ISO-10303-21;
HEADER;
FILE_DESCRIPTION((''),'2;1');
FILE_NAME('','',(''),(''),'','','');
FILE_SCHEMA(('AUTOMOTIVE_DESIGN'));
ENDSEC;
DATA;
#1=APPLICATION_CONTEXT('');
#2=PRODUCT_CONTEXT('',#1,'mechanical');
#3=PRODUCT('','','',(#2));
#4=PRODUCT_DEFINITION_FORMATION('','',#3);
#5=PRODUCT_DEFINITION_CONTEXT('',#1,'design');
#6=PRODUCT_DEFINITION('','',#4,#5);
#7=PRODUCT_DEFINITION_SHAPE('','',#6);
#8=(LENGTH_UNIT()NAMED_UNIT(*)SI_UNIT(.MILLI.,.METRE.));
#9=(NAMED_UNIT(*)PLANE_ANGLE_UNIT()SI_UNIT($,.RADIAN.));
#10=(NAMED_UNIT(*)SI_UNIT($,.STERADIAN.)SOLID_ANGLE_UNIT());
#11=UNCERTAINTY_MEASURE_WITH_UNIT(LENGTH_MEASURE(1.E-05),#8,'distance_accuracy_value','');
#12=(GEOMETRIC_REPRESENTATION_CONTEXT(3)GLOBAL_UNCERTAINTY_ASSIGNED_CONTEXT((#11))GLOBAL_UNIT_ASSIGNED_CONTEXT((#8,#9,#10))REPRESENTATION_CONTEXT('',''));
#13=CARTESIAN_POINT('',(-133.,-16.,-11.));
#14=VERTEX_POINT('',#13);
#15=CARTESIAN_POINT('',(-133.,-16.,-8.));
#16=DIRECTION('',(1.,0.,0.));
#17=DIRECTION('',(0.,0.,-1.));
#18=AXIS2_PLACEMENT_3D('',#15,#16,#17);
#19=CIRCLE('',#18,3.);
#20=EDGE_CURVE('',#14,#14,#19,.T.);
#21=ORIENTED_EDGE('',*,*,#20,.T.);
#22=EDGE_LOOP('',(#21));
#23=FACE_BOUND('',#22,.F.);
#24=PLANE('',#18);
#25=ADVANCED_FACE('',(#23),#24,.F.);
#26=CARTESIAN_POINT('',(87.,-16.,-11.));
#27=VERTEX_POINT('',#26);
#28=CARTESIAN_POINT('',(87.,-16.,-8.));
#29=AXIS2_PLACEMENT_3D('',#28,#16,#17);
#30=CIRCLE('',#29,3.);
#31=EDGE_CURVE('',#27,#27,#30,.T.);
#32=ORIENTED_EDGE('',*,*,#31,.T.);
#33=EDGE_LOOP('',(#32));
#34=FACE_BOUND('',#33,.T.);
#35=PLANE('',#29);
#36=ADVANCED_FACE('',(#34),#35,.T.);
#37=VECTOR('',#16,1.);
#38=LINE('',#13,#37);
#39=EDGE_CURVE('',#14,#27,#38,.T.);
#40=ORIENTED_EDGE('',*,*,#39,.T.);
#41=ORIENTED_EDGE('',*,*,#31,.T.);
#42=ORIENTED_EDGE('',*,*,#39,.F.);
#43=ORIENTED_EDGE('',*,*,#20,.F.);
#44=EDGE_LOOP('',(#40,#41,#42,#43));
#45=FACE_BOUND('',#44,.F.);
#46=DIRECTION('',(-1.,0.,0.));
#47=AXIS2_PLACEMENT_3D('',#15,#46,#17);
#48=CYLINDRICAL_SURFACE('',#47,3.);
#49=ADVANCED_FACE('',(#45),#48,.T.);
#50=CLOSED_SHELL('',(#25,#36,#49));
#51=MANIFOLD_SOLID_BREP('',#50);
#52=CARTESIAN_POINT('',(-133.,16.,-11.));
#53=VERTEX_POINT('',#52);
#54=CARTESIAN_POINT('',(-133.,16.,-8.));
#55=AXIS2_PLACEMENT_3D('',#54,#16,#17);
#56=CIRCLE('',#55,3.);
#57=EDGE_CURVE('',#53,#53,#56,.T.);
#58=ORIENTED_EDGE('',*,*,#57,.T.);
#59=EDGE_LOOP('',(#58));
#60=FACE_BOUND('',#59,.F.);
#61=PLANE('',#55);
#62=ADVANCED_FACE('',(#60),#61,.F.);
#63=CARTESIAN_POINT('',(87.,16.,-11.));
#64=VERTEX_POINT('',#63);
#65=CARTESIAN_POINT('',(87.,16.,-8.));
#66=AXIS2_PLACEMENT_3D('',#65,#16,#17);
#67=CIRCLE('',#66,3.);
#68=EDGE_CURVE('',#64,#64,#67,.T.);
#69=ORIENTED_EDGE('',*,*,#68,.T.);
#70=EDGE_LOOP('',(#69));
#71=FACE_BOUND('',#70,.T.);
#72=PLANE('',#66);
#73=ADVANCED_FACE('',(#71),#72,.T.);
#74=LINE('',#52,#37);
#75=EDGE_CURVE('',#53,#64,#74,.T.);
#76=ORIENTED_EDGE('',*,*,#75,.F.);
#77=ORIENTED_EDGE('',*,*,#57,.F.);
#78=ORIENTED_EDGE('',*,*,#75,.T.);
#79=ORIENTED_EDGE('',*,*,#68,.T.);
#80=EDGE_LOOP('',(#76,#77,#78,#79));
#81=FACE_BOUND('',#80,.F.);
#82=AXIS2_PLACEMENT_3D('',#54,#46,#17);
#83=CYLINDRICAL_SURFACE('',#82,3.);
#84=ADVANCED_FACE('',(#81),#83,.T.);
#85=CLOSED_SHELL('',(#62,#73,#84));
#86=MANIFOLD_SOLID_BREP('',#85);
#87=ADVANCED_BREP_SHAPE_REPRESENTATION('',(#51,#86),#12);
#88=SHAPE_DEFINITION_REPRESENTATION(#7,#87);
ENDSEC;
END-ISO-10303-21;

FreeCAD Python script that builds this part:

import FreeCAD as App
import Part
import Sketcher
Q = App.Units.Quantity

doc = App.newDocument("Part")
params = doc.addObject("Spreadsheet::Sheet", "Params")
for row, (alias, value) in enumerate([
    ("sketch1_diameter", "6 mm"),
    ("pad1_length", "220 mm"),
    ("sketch2_diameter", "6 mm"),
    ("pad2_length", "220 mm"),
], start=1):
    params.set(f"A{row}", alias)
    params.set(f"B{row}", "=" + value)
    params.setAlias(f"B{row}", alias)

body = doc.addObject("PartDesign::Body", "Body")

# Sketch on YZ plane
sketch1 = body.newObject("Sketcher::SketchObject", "Sketch")
sketch1.AttachmentSupport = (doc.getObject("YZ_Plane"), [""])
sketch1.MapMode = "FlatFace"
sketch1.AttachmentOffset = App.Placement(App.Vector(0, 0, -133), App.Rotation())
sketch1.addGeometry(Part.Circle(App.Vector(16, -8, 0), App.Vector(0, 0, 1), 3), False)
sketch1.addConstraint(Sketcher.Constraint("Diameter", 0, Q("6 mm")))
sketch1.addConstraint(Sketcher.Constraint("DistanceX", -1, 1, 0, 3, Q("16 mm")))
sketch1.addConstraint(Sketcher.Constraint("DistanceY", 0, 3, -1, 1, Q("8 mm")))
sketch1.setExpression("Constraints[0]", "Params.sketch1_diameter")
pad1 = body.newObject("PartDesign::Pad", "Pad")
pad1.Profile = sketch1
pad1.setExpression("Length", "Params.pad1_length")
body2 = doc.addObject("PartDesign::Body", "Body001")
body2.AllowCompound = True

# Sketch on YZ plane
sketch2 = body2.newObject("Sketcher::SketchObject", "Sketch001")
sketch2.AttachmentSupport = (doc.getObject("YZ_Plane001"), [""])
sketch2.MapMode = "FlatFace"
sketch2.AttachmentOffset = App.Placement(App.Vector(0, 0, -133), App.Rotation())
sketch2.addGeometry(Part.Circle(App.Vector(-16, -8, 0), App.Vector(0, 0, 1), 3), False)
sketch2.addConstraint(Sketcher.Constraint("Diameter", 0, Q("6 mm")))
sketch2.addConstraint(Sketcher.Constraint("DistanceX", 0, 3, -1, 1, Q("16 mm")))
sketch2.addConstraint(Sketcher.Constraint("DistanceY", 0, 3, -1, 1, Q("8 mm")))
sketch2.setExpression("Constraints[0]", "Params.sketch2_diameter")
pad2 = body2.newObject("PartDesign::Pad", "Pad001")
pad2.Profile = sketch2
pad2.setExpression("Length", "Params.pad2_length")
doc.recompute()

boolean = body2.newObject("PartDesign::Boolean", "Boolean")
boolean.Type = "Fuse"
boolean.addObjects([body])

doc.recompute()
